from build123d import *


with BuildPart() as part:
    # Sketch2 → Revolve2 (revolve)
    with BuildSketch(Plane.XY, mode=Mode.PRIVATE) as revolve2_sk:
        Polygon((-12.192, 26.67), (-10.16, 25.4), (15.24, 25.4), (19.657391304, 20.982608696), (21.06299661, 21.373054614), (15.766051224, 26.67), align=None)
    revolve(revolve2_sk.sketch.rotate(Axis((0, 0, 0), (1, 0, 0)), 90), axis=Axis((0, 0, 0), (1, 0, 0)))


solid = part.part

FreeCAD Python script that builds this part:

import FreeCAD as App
import Part
import Sketcher
from FreeCAD import Vector
Q = App.Units.Quantity


def add_polygon(sketch, points):
    """Adds a closed chain of lines whose ends are joined by coincident constraints."""
    first, n = sketch.GeometryCount, len(points)
    for a, b in zip(points, points[1:] + points[:1]):
        sketch.addGeometry(Part.LineSegment(App.Vector(*a, 0), App.Vector(*b, 0)), False)
    for i in range(n):
        sketch.addConstraint(Sketcher.Constraint("Coincident", first + i, 2, first + (i + 1) % n, 1))

doc = App.newDocument("Part")
body = doc.addObject("PartDesign::Body", "Body")

# Sketch on XY plane
sketch1 = doc.addObject("Sketcher::SketchObject", "Sketch")
body.addObject(sketch1)
sketch1.AttachmentSupport = (doc.XY_Plane, [""])
sketch1.MapMode = "FlatFace"
add_polygon(sketch1, [(-12.192, 26.67), (-10.16, 25.4), (15.24, 25.4), (19.657391, 20.982609), (21.062997, 21.373055), (15.766051, 26.67)])  # lines 0-5
sketch1.addConstraint([
    Sketcher.Constraint("Horizontal", 1),
    Sketcher.Constraint("Horizontal", 5),
    Sketcher.Constraint("Parallel", 2, 4),
    Sketcher.Constraint("DistanceX", 1, 1, 1, 2, Q("1 in")),
    Sketcher.Constraint("DistanceY", -1, 1, 0, 2, Q("1 in")),
    Sketcher.Constraint("Angle", 2, Q("-45 deg")),
    Sketcher.Constraint("DistanceX", 0, 2, -1, 1, Q("0.4 in")),
    Sketcher.Constraint("DistanceY", -1, 1, 4, 2, Q("1.05 in")),
    Sketcher.Constraint("DistanceX", 5, 2, -1, 1, Q("0.48 in")),
    Sketcher.Constraint("DistanceX", 5, 2, 5, 1, 27.958051),
    Sketcher.Constraint("DistanceX", -1, 1, 2, 2, 19.657391),
    Sketcher.Constraint("Distance", 3, 1.458826),
])
revolution = doc.addObject("PartDesign::Revolution", "Revolution")
body.addObject(revolution)
revolution.Profile = sketch1
revolution.ReferenceAxis = (sketch1, ["H_Axis"])
revolution.Angle = 360

doc.recompute()
